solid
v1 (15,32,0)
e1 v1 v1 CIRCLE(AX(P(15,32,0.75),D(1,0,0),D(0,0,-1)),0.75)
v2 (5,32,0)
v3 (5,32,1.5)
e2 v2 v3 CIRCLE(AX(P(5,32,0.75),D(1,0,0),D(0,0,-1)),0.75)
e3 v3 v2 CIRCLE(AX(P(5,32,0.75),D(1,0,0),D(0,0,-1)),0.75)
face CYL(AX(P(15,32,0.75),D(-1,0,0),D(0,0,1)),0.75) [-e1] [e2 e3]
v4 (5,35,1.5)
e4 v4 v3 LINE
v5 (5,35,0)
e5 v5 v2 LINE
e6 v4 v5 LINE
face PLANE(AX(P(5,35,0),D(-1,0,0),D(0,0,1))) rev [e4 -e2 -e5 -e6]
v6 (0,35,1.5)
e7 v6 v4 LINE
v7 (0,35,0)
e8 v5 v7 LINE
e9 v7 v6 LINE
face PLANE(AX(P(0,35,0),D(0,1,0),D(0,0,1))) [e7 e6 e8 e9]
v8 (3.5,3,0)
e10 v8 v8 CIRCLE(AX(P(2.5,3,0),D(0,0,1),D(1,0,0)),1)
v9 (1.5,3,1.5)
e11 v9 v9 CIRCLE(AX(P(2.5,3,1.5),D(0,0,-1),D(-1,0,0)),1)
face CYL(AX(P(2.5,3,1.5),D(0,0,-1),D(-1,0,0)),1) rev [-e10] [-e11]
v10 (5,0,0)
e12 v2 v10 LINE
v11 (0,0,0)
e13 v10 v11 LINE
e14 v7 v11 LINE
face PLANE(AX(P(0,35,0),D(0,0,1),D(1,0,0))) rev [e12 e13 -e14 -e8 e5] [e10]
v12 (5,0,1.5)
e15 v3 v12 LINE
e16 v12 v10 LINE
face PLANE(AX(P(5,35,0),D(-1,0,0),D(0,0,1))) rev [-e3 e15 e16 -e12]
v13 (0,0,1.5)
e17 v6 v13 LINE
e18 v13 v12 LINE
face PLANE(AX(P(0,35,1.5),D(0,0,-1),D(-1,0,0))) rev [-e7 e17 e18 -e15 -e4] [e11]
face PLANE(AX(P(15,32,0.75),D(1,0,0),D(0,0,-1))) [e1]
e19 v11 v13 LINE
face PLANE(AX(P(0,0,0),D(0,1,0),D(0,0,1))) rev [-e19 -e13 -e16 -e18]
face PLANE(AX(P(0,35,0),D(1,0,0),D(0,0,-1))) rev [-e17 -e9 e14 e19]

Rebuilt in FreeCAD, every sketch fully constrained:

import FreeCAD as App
import Part
import Sketcher
from FreeCAD import Vector
Q = App.Units.Quantity

doc = App.newDocument("Part")
body = doc.addObject("PartDesign::Body", "Body")

sketch1 = body.newObject("Sketcher::SketchObject", "Sketch")
sketch1.AttachmentSupport = (doc.getObject("XZ_Plane"), [""])
sketch1.MapMode = "FlatFace"
sketch1.addGeometry([
    Part.LineSegment(Vector(0, 0, 0), Vector(0, 1.5, 0)),
    Part.LineSegment(Vector(0, 1.5, 0), Vector(5, 1.5, 0)),
    Part.LineSegment(Vector(5, 1.5, 0), Vector(5, 0, 0)),
    Part.LineSegment(Vector(5, 0, 0), Vector(0, 0, 0)),
], False)
sketch1.addConstraint([
    Sketcher.Constraint("Coincident", 0, 2, 1, 1),
    Sketcher.Constraint("Coincident", 1, 2, 2, 1),
    Sketcher.Constraint("Coincident", 2, 2, 3, 1),
    Sketcher.Constraint("Coincident", 3, 2, 0, 1),
    Sketcher.Constraint("Vertical", 0),
    Sketcher.Constraint("Horizontal", 1),
    Sketcher.Constraint("Vertical", 2),
    Sketcher.Constraint("Horizontal", 3),
    Sketcher.Constraint("Coincident", 3, 2, -1, 1),
    Sketcher.Constraint("DistanceX", 1, 1, 1, 2, Q("5 mm")),
    Sketcher.Constraint("DistanceY", 0, 1, 0, 2, Q("1.5 mm")),
])
pad1 = body.newObject("PartDesign::Pad", "Pad")
pad1.Profile = sketch1
pad1.Length = 35
pad1.Reversed = True

sketch2 = body.newObject("Sketcher::SketchObject", "Sketch001")
sketch2.AttachmentSupport = (doc.getObject("XY_Plane"), [""])
sketch2.MapMode = "FlatFace"
sketch2.addGeometry(Part.Circle(Vector(2.5, 3, 0), Vector(0, 0, 1), 1), False)
sketch2.addConstraint([
    Sketcher.Constraint("Diameter", 0, Q("2 mm")),
    Sketcher.Constraint("DistanceY", -1, 1, 0, 3, Q("3 mm")),
    Sketcher.Constraint("DistanceX", -1, 1, 0, 3, Q("2.5 mm")),
])
pocket1 = body.newObject("PartDesign::Pocket", "Pocket")
pocket1.Profile = sketch2
pocket1.Type = "ThroughAll"
pocket1.Midplane = True

sketch3 = body.newObject("Sketcher::SketchObject", "Sketch002")
sketch3.AttachmentSupport = (doc.getObject("YZ_Plane"), [""])
sketch3.MapMode = "FlatFace"
sketch3.AttachmentOffset = App.Placement(Vector(0, 0, 5), App.Rotation())
sketch3.addGeometry(Part.Circle(Vector(32, 0.8, 0), Vector(0, 0, 1), 0.8), False)
sketch3.addConstraint([
    Sketcher.Constraint("Diameter", 0, Q("1.5 mm")),
    Sketcher.Constraint("DistanceX", -1, 1, 0, 3, Q("32 mm")),
    Sketcher.Constraint("DistanceY", -1, 1, 0, 3, Q("0.75 mm")),
])
pad2 = body.newObject("PartDesign::Pad", "Pad001")
pad2.Profile = sketch3
pad2.Length = 10

doc.recompute()
